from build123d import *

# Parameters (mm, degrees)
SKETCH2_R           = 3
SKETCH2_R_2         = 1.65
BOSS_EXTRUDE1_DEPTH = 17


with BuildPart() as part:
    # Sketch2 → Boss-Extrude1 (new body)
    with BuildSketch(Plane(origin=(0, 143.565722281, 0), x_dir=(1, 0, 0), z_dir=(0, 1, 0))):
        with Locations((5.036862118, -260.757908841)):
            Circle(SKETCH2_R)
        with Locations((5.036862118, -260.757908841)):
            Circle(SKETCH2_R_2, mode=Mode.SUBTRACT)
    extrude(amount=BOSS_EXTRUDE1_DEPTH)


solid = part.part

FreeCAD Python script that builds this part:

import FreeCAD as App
import Part
import Sketcher

V = App.Vector
Q = App.Units.Quantity

doc = App.newDocument("Part")
body = doc.addObject("PartDesign::Body", "Body")

# Sketch on XZ plane
sketch1 = doc.addObject("Sketcher::SketchObject", "Sketch")
body.addObject(sketch1)
sketch1.AttachmentSupport = (doc.XZ_Plane, [""])
sketch1.MapMode = "FlatFace"
sketch1.AttachmentOffset = App.Placement(V(0, 0, -143.565722), App.Rotation())
sketch1.addGeometry([
    Part.Circle(V(5, 260.8, 0), V(0, 0, 1), 3),
    Part.Circle(V(5, 260.8, 0), V(0, 0, 1), 1.6),
], False)
sketch1.addConstraint([
    Sketcher.Constraint("Coincident", 1, 3, 0, 3),
    Sketcher.Constraint("Diameter", 0, Q("6 mm")),
    Sketcher.Constraint("Diameter", 1, Q("3.3 mm")),
    Sketcher.Constraint("DistanceY", -1, 1, 0, 3, Q("260.757909 mm")),
    Sketcher.Constraint("DistanceX", -1, 1, 0, 3, Q("5.036862 mm")),
])
pad1 = doc.addObject("PartDesign::Pad", "Pad")
body.addObject(pad1)
pad1.Profile = sketch1
pad1.Length = 17
pad1.Reversed = True

doc.recompute()
